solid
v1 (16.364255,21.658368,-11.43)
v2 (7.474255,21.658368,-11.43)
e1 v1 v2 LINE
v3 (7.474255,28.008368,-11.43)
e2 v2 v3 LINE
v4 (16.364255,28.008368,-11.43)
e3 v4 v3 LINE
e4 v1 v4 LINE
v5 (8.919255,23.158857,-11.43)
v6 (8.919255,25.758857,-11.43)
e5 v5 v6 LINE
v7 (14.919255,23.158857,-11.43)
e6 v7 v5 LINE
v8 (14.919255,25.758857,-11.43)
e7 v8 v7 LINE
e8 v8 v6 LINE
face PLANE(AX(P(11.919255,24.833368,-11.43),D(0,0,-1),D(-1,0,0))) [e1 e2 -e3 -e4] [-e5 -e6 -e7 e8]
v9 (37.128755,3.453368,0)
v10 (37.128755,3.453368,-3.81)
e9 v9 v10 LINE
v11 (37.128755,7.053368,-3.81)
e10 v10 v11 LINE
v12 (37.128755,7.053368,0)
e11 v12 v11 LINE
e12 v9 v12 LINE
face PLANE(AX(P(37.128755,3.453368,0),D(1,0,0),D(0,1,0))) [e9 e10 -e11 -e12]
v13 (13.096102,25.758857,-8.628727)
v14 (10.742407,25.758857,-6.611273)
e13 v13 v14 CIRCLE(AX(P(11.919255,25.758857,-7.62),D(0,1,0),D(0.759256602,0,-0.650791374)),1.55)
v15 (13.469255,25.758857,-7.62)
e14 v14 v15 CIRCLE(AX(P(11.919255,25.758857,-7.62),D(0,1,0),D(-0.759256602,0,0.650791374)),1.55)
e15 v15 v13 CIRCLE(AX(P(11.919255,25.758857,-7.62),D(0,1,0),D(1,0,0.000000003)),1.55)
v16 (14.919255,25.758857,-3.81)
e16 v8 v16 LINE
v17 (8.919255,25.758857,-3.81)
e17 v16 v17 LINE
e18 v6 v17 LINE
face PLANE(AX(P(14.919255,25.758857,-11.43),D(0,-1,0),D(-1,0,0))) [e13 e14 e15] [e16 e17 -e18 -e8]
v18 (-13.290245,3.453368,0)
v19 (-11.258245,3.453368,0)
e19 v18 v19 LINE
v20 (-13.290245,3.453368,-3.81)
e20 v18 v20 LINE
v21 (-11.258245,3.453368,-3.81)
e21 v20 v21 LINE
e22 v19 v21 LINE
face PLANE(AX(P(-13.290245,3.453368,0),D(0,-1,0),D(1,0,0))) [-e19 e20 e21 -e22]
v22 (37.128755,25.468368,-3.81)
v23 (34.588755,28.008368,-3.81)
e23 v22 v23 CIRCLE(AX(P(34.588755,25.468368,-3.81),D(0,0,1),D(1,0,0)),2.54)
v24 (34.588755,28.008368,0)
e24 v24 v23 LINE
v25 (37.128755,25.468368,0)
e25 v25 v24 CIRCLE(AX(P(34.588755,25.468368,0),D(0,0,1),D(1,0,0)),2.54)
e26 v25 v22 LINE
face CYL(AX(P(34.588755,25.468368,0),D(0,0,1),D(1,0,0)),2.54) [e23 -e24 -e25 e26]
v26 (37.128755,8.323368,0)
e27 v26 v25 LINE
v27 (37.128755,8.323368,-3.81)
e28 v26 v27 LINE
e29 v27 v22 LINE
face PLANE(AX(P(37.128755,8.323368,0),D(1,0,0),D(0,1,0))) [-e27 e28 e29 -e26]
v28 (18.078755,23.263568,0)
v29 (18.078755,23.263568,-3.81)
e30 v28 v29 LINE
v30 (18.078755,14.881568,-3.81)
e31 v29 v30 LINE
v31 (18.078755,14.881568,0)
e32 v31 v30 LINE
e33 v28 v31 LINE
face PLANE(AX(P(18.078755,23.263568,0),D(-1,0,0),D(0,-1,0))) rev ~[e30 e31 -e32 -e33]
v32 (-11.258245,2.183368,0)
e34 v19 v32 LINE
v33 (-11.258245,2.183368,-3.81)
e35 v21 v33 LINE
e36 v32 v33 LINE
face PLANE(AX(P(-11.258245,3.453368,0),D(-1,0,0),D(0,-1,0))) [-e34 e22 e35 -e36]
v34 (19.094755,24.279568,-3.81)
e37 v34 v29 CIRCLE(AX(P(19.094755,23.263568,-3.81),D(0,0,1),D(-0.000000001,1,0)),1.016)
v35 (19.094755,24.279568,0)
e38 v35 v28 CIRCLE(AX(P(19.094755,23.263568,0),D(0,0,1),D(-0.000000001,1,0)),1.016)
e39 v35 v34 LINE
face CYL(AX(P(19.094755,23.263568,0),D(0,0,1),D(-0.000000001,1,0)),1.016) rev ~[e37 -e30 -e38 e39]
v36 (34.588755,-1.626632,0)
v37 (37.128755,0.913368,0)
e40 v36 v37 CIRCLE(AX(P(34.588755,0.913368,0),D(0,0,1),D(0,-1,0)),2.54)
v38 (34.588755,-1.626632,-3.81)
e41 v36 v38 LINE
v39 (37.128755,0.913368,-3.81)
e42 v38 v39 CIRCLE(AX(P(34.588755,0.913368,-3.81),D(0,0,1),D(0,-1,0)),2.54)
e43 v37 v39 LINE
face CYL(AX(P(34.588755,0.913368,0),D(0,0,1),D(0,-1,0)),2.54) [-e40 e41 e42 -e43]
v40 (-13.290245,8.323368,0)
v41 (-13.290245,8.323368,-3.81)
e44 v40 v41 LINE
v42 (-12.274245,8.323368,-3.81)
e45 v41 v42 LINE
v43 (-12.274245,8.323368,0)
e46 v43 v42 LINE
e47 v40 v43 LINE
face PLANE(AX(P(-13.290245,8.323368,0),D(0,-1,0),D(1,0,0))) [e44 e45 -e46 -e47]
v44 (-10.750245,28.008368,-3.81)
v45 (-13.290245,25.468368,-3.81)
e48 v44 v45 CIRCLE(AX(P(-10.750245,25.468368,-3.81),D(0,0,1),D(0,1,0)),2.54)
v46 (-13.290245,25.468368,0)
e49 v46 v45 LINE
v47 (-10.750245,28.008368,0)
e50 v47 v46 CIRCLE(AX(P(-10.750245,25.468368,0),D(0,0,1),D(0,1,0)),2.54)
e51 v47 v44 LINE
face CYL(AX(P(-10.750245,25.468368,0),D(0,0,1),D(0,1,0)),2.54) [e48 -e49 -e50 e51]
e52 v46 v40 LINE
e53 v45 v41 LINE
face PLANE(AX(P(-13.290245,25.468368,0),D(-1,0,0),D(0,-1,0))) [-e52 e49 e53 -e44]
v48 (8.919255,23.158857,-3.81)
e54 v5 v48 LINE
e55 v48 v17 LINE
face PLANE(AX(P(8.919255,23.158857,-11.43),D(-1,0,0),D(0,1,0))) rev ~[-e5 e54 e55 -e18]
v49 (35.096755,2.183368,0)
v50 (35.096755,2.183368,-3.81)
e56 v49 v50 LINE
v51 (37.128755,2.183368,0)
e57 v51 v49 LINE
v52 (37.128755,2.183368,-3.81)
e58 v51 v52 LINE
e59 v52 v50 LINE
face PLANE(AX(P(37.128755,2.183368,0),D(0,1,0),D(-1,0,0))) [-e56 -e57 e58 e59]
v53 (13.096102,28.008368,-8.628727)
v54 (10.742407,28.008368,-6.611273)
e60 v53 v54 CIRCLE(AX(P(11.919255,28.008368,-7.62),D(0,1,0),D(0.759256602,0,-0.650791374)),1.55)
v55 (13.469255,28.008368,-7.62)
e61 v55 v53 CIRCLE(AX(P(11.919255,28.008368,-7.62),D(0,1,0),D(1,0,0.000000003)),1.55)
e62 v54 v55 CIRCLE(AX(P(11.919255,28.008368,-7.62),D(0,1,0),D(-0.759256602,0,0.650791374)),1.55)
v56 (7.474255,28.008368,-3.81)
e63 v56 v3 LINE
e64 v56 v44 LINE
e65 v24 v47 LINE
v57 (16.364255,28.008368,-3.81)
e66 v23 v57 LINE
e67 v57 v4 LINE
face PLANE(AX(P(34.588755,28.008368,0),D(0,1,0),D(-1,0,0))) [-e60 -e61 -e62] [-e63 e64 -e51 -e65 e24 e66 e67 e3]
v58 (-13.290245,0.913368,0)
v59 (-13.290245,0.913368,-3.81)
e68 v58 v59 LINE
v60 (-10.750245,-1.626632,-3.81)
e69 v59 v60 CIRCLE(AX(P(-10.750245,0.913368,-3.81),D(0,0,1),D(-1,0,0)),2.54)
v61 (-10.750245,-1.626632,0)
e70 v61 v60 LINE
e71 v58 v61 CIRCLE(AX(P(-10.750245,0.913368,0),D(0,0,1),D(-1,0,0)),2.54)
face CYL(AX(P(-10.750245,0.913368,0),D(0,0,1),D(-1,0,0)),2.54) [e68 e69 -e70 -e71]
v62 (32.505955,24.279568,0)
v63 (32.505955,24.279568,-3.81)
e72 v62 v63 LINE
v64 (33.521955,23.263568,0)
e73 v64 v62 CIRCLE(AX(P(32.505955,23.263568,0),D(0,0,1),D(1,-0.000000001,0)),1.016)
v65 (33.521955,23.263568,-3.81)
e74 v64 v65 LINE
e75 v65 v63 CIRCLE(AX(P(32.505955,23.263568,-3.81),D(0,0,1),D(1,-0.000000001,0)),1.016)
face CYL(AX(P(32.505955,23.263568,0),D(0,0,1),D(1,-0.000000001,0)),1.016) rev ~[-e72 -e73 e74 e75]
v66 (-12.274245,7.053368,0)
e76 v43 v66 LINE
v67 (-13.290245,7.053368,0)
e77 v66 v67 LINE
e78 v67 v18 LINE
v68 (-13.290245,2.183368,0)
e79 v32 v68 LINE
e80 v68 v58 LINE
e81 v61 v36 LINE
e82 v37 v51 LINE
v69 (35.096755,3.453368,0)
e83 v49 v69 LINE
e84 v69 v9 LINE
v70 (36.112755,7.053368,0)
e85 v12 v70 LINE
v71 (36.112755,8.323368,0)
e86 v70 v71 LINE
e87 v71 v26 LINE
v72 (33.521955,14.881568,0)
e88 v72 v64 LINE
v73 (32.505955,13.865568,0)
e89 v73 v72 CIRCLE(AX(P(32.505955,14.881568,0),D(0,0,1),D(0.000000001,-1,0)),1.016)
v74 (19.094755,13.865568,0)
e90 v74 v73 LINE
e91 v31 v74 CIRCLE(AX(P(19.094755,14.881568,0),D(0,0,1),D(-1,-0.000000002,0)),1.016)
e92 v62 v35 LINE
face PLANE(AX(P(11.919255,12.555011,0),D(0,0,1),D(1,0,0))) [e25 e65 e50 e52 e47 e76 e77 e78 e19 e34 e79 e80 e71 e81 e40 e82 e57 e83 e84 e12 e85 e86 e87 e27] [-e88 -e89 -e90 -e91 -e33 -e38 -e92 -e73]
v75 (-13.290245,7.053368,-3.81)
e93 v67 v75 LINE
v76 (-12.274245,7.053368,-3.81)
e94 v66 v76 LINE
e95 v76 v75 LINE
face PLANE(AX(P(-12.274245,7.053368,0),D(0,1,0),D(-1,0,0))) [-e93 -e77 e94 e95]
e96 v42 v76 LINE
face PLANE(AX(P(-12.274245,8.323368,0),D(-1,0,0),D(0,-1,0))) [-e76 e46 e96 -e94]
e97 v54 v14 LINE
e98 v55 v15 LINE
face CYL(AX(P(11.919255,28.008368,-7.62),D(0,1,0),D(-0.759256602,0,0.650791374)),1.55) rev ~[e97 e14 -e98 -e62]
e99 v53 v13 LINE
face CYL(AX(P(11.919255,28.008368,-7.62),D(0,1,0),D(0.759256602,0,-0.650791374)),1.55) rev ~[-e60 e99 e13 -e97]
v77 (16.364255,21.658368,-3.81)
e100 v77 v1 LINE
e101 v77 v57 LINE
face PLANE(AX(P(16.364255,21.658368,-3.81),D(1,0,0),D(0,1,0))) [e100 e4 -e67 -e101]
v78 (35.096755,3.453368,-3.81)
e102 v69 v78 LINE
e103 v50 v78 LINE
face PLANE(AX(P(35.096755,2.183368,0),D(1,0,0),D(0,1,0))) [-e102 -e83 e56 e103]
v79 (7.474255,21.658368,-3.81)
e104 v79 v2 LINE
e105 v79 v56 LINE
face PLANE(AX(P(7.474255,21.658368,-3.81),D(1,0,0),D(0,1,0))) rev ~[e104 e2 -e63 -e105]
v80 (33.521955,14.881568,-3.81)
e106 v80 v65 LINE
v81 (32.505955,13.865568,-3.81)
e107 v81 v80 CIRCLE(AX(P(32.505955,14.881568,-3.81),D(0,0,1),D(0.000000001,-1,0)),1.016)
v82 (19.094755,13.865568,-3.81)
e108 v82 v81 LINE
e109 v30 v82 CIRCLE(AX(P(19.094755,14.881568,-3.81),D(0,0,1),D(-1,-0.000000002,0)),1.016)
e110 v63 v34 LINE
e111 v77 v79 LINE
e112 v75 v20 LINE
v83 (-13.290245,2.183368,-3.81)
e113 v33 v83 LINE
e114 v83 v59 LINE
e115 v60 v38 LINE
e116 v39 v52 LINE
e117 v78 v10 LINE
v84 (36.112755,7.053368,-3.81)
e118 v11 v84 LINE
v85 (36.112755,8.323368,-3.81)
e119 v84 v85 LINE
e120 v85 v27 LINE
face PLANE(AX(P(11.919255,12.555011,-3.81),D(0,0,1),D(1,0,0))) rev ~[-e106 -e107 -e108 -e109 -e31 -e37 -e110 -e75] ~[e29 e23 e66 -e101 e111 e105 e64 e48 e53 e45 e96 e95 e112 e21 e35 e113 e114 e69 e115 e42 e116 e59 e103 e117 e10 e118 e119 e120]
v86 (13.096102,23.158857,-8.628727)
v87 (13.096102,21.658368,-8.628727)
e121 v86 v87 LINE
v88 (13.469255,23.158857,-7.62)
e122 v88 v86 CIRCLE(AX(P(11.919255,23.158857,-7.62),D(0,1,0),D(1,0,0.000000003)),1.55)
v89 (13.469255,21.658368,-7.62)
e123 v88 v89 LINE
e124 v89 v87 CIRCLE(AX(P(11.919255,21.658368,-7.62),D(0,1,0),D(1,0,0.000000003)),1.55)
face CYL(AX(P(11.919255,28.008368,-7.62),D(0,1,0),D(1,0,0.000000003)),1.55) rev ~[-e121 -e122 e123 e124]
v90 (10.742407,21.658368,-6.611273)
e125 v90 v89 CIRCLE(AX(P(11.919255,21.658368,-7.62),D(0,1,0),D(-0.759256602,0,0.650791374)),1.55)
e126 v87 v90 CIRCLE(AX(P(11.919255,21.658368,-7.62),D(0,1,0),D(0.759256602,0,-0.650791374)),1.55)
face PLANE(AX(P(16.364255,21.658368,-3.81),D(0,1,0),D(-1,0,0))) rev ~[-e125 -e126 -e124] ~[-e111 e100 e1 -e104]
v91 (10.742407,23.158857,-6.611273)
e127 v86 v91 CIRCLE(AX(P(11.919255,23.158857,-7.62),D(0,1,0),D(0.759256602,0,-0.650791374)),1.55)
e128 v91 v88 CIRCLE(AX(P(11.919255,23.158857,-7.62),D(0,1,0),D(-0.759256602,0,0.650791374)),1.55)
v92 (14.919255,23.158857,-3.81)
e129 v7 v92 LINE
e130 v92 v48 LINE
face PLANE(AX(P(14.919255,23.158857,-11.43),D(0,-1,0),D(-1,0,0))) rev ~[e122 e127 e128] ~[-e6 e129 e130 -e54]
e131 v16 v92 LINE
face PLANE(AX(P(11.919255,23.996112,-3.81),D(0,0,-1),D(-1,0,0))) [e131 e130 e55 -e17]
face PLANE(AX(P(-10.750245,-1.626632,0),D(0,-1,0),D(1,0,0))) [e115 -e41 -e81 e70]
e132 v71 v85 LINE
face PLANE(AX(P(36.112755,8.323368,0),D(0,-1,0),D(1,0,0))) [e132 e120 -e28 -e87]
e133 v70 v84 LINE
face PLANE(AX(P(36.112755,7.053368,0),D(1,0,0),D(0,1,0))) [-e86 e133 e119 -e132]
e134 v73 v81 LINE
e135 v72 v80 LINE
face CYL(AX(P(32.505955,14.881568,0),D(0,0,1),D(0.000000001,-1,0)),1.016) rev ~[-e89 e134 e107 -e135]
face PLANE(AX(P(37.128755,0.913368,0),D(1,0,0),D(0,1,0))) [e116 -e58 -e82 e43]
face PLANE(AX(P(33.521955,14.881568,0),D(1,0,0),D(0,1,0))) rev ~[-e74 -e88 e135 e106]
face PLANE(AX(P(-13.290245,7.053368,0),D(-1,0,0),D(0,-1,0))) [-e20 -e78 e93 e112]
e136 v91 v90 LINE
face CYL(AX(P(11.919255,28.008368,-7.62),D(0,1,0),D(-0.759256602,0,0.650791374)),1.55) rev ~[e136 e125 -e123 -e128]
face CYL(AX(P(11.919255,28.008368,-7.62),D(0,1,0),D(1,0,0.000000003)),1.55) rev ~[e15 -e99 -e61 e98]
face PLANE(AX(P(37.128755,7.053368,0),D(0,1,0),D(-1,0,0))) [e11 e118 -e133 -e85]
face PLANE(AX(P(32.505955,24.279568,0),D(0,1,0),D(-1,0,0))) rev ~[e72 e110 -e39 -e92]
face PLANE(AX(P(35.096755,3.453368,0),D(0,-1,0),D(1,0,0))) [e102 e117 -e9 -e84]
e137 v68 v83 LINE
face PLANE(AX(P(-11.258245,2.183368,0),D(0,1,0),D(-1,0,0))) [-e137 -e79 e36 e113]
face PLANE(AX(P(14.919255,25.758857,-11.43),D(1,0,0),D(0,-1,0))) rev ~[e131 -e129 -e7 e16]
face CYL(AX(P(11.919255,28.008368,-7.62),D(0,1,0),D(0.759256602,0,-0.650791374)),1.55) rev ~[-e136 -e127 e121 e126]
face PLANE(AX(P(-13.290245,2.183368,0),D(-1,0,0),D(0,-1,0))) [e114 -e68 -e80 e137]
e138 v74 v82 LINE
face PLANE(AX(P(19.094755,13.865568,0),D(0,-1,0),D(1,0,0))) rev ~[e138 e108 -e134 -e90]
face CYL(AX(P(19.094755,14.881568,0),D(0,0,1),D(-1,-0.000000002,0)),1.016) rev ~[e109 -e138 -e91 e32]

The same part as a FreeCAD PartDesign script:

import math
import FreeCAD as App
import Part
import Sketcher

V = App.Vector
Q = App.Units.Quantity

doc = App.newDocument("Part")
body = doc.addObject("PartDesign::Body", "Body")

sketch1 = body.newObject("Sketcher::SketchObject", "Sketch")
sketch1.AttachmentSupport = (doc.getObject("XY_Plane"), [""])
sketch1.MapMode = "FlatFace"
sketch1.addGeometry([
    Part.LineSegment(V(37.128755, 0.913368, 0), V(37.128755, 2.183368, 0)),
    Part.LineSegment(V(37.128755, 2.183368, 0), V(35.096755, 2.183368, 0)),
    Part.LineSegment(V(35.096755, 2.183368, 0), V(35.096755, 3.453368, 0)),
    Part.LineSegment(V(35.096755, 3.453368, 0), V(37.128755, 3.453368, 0)),
    Part.LineSegment(V(37.128755, 3.453368, 0), V(37.128755, 7.053368, 0)),
    Part.LineSegment(V(37.128755, 7.053368, 0), V(36.112755, 7.053368, 0)),
    Part.LineSegment(V(36.112755, 7.053368, 0), V(36.112755, 8.323368, 0)),
    Part.LineSegment(V(36.112755, 8.323368, 0), V(37.128755, 8.323368, 0)),
    Part.LineSegment(V(37.128755, 8.323368, 0), V(37.128755, 25.468368, 0)),
    Part.ArcOfCircle(Part.Circle(V(34.588755, 25.468368, 0), V(0, 0, 1), 2.54), math.radians(0), math.radians(90)),
    Part.LineSegment(V(34.588755, 28.008368, 0), V(-10.750245, 28.008368, 0)),
    Part.ArcOfCircle(Part.Circle(V(-10.750245, 25.468368, 0), V(0, 0, 1), 2.54), math.radians(90), math.radians(180)),
    Part.LineSegment(V(-13.290245, 25.468368, 0), V(-13.290245, 8.323368, 0)),
    Part.LineSegment(V(-13.290245, 8.323368, 0), V(-12.274245, 8.323368, 0)),
    Part.LineSegment(V(-12.274245, 8.323368, 0), V(-12.274245, 7.053368, 0)),
    Part.LineSegment(V(-12.274245, 7.053368, 0), V(-13.290245, 7.053368, 0)),
    Part.LineSegment(V(-13.290245, 7.053368, 0), V(-13.290245, 3.453368, 0)),
    Part.LineSegment(V(-13.290245, 3.453368, 0), V(-11.258245, 3.453368, 0)),
    Part.LineSegment(V(-11.258245, 3.453368, 0), V(-11.258245, 2.183368, 0)),
    Part.LineSegment(V(-11.258245, 2.183368, 0), V(-13.290245, 2.183368, 0)),
    Part.LineSegment(V(-13.290245, 2.183368, 0), V(-13.290245, 0.913368, 0)),
    Part.ArcOfCircle(Part.Circle(V(-10.750245, 0.913368, 0), V(0, 0, 1), 2.54), math.radians(-180), math.radians(-90)),
    Part.LineSegment(V(-10.750245, -1.626632, 0), V(34.588755, -1.626632, 0)),
    Part.ArcOfCircle(Part.Circle(V(34.588755, 0.913368, 0), V(0, 0, 1), 2.54), math.radians(-90), math.radians(0)),
    Part.LineSegment(V(19.094755, 24.279568, 0), V(32.505955, 24.279568, 0)),
    Part.ArcOfCircle(Part.Circle(V(32.505955, 23.263568, 0), V(0, 0, 1), 1.016), math.radians(0), math.radians(90)),
    Part.LineSegment(V(33.521955, 23.263568, 0), V(33.521955, 14.881568, 0)),
    Part.ArcOfCircle(Part.Circle(V(32.505955, 14.881568, 0), V(0, 0, 1), 1.016), math.radians(-90), math.radians(0)),
    Part.LineSegment(V(32.505955, 13.865568, 0), V(19.094755, 13.865568, 0)),
    Part.ArcOfCircle(Part.Circle(V(19.094755, 14.881568, 0), V(0, 0, 1), 1.016), math.radians(-180), math.radians(-90)),
    Part.LineSegment(V(18.078755, 14.881568, 0), V(18.078755, 23.263568, 0)),
    Part.ArcOfCircle(Part.Circle(V(19.094755, 23.263568, 0), V(0, 0, 1), 1.016), math.radians(90), math.radians(180)),
], False)
sketch1.addConstraint([
    Sketcher.Constraint("Coincident", 0, 2, 1, 1),
    Sketcher.Constraint("Coincident", 1, 2, 2, 1),
    Sketcher.Constraint("Coincident", 2, 2, 3, 1),
    Sketcher.Constraint("Coincident", 3, 2, 4, 1),
    Sketcher.Constraint("Coincident", 4, 2, 5, 1),
    Sketcher.Constraint("Coincident", 5, 2, 6, 1),
    Sketcher.Constraint("Coincident", 6, 2, 7, 1),
    Sketcher.Constraint("Coincident", 7, 2, 8, 1),
    Sketcher.Constraint("Tangent", 8, 2, 9, 1),
    Sketcher.Constraint("Tangent", 9, 2, 10, 1),
    Sketcher.Constraint("Tangent", 10, 2, 11, 1),
    Sketcher.Constraint("Tangent", 11, 2, 12, 1),
    Sketcher.Constraint("Coincident", 12, 2, 13, 1),
    Sketcher.Constraint("Coincident", 13, 2, 14, 1),
    Sketcher.Constraint("Coincident", 14, 2, 15, 1),
    Sketcher.Constraint("Coincident", 15, 2, 16, 1),
    Sketcher.Constraint("Coincident", 16, 2, 17, 1),
    Sketcher.Constraint("Coincident", 17, 2, 18, 1),
    Sketcher.Constraint("Coincident", 18, 2, 19, 1),
    Sketcher.Constraint("Coincident", 19, 2, 20, 1),
    Sketcher.Constraint("Tangent", 20, 2, 21, 1),
    Sketcher.Constraint("Tangent", 21, 2, 22, 1),
    Sketcher.Constraint("Tangent", 22, 2, 23, 1),
    Sketcher.Constraint("Tangent", 23, 2, 0, 1),
    Sketcher.Constraint("Tangent", 24, 2, 25, 2),
    Sketcher.Constraint("Tangent", 25, 1, 26, 1),
    Sketcher.Constraint("Tangent", 26, 2, 27, 2),
    Sketcher.Constraint("Tangent", 27, 1, 28, 1),
    Sketcher.Constraint("Tangent", 28, 2, 29, 2),
    Sketcher.Constraint("Tangent", 29, 1, 30, 1),
    Sketcher.Constraint("Tangent", 30, 2, 31, 2),
    Sketcher.Constraint("Tangent", 31, 1, 24, 1),
    Sketcher.Constraint("Vertical", 0),
    Sketcher.Constraint("Horizontal", 1),
    Sketcher.Constraint("Vertical", 2),
    Sketcher.Constraint("Horizontal", 3),
    Sketcher.Constraint("Vertical", 4),
    Sketcher.Constraint("Horizontal", 5),
    Sketcher.Constraint("Vertical", 6),
    Sketcher.Constraint("Horizontal", 7),
    Sketcher.Constraint("Vertical", 8),
    Sketcher.Constraint("Horizontal", 10),
    Sketcher.Constraint("Vertical", 12),
    Sketcher.Constraint("Horizontal", 13),
    Sketcher.Constraint("Vertical", 14),
    Sketcher.Constraint("Horizontal", 15),
    Sketcher.Constraint("Vertical", 16),
    Sketcher.Constraint("Horizontal", 17),
    Sketcher.Constraint("Vertical", 18),
    Sketcher.Constraint("Horizontal", 19),
    Sketcher.Constraint("Vertical", 20),
    Sketcher.Constraint("Horizontal", 22),
    Sketcher.Constraint("Horizontal", 24),
    Sketcher.Constraint("Vertical", 26),
    Sketcher.Constraint("Horizontal", 28),
    Sketcher.Constraint("Vertical", 30),
    Sketcher.Constraint("Equal", 9, 11),
    Sketcher.Constraint("Equal", 11, 21),
    Sketcher.Constraint("Equal", 21, 23),
    Sketcher.Constraint("Equal", 25, 27),
    Sketcher.Constraint("Equal", 27, 29),
    Sketcher.Constraint("Equal", 29, 31),
    Sketcher.Constraint("Horizontal", 7, 2, 12, 2),
    Sketcher.Constraint("Horizontal", 5, 2, 14, 2),
    Sketcher.Constraint("Horizontal", 3, 2, 16, 2),
    Sketcher.Constraint("Horizontal", 1, 2, 18, 2),
    Sketcher.Constraint("Vertical", 11, 3, 21, 3),
    Sketcher.Constraint("Vertical", 9, 3, 23, 3),
    Sketcher.Constraint("Vertical", 0, 2, 3, 2),
    Sketcher.Constraint("Vertical", 12, 2, 15, 2),
    Sketcher.Constraint("Equal", 7, 13),
    Sketcher.Constraint("Equal", 3, 17),
    Sketcher.Constraint("Equal", 0, 2),
    Sketcher.Constraint("Equal", 2, 6),
    Sketcher.Constraint("Radius", 9, Q("0.1 in")),
    Sketcher.Constraint("Radius", 25, Q("0.04 in")),
    Sketcher.Constraint("DistanceX", 1, 2, 1, 1, Q("0.08 in")),
    Sketcher.Constraint("DistanceX", 5, 2, 5, 1, Q("0.04 in")),
    Sketcher.Constraint("DistanceY", 0, 1, 0, 2, Q("0.05 in")),
    Sketcher.Constraint("DistanceY", 26, 2, 26, 1, Q("0.33 in")),
    Sketcher.Constraint("DistanceX", 10, 2, 10, 1, Q("1.785 in")),
    Sketcher.Constraint("DistanceX", 24, 1, 24, 2, Q("0.528 in")),
    Sketcher.Constraint("DistanceY", 8, 1, 8, 2, Q("0.675 in")),
    Sketcher.Constraint("DistanceX", 29, 3, 9, 3, Q("0.61 in")),
    Sketcher.Constraint("DistanceY", 4, 1, 4, 2, Q("3.6 mm")),
    Sketcher.Constraint("DistanceY", 25, 3, 9, 3, Q("2.2048 mm")),
    Sketcher.Constraint("DistanceX", -1, 1, 9, 3, Q("34.588755 mm")),
    Sketcher.Constraint("DistanceY", -1, 1, 9, 3, Q("25.468368 mm")),
])
pad1 = body.newObject("PartDesign::Pad", "Pad")
pad1.Profile = sketch1
pad1.Length = Q("0.15 in")
pad1.Reversed = True

sketch2 = body.newObject("Sketcher::SketchObject", "Sketch001")
sketch2.AttachmentSupport = (doc.getObject("XY_Plane"), [""])
sketch2.MapMode = "FlatFace"
sketch2.AttachmentOffset = App.Placement(V(0, 0, -0.15 * 25.4), App.Rotation())
sketch2.addGeometry([
    Part.LineSegment(V(16.364255, 28.008368, 0), V(16.364255, 21.658368, 0)),
    Part.LineSegment(V(16.364255, 21.658368, 0), V(7.474255, 21.658368, 0)),
    Part.LineSegment(V(7.474255, 21.658368, 0), V(7.474255, 28.008368, 0)),
    Part.LineSegment(V(7.474255, 28.008368, 0), V(16.364255, 28.008368, 0)),
], False)
sketch2.addConstraint([
    Sketcher.Constraint("Coincident", 0, 2, 1, 1),
    Sketcher.Constraint("Coincident", 1, 2, 2, 1),
    Sketcher.Constraint("Coincident", 2, 2, 3, 1),
    Sketcher.Constraint("Coincident", 3, 2, 0, 1),
    Sketcher.Constraint("Vertical", 0),
    Sketcher.Constraint("Horizontal", 1),
    Sketcher.Constraint("Vertical", 2),
    Sketcher.Constraint("Horizontal", 3),
    Sketcher.Constraint("DistanceX", 1, 2, 1, 1, Q("0.35 in")),
    Sketcher.Constraint("DistanceY", 0, 2, 0, 1, Q("0.25 in")),
    Sketcher.Constraint("DistanceX", -1, 1, 0, 2, Q("16.364255 mm")),
    Sketcher.Constraint("DistanceY", -1, 1, 0, 2, Q("21.658368 mm")),
])
pad2 = body.newObject("PartDesign::Pad", "Pad001")
pad2.Profile = sketch2
pad2.Length = Q("0.3 in")
pad2.Reversed = True

sketch3 = body.newObject("Sketcher::SketchObject", "Sketch002")
sketch3.AttachmentSupport = (doc.getObject("XZ_Plane"), [""])
sketch3.MapMode = "FlatFace"
sketch3.AttachmentOffset = App.Placement(V(0, 0, -28.008368), App.Rotation())
sketch3.addGeometry([
    Part.ArcOfCircle(Part.Circle(V(11.919255, -7.62, 0), V(0, 0, 1), 1.55), math.radians(139.398705), math.radians(319.398705)),
    Part.ArcOfCircle(Part.Circle(V(11.919255, -7.62, 0), V(0, 0, 1), 1.55), math.radians(0), math.radians(139.398705)),
    Part.ArcOfCircle(Part.Circle(V(11.919255, -7.62, 0), V(0, 0, 1), 1.55), math.radians(-40.601295), math.radians(0)),
], False)
sketch3.addConstraint([
    Sketcher.Constraint("Tangent", 0, 1, 1, 2),
    Sketcher.Constraint("Tangent", 1, 1, 2, 2),
    Sketcher.Constraint("Tangent", 2, 1, 0, 2),
    Sketcher.Constraint("Horizontal", 2, 3, 1, 1),
    Sketcher.Constraint("DistanceY", 0, 3, -1, 1, Q("0.3 in")),
    Sketcher.Constraint("Radius", 0, Q("1.55 mm")),
    Sketcher.Constraint("DistanceX", -1, 1, 0, 3, Q("11.919255 mm")),
    Sketcher.Constraint("DistanceX", -1, 1, 0, 1, Q("10.742407 mm")),
    Sketcher.Constraint("DistanceX", -1, 1, 2, 1, Q("13.096102 mm")),
])
pocket1 = body.newObject("PartDesign::Pocket", "Pocket")
pocket1.Profile = sketch3
pocket1.Length = Q("0.3 in")
pocket1.Reversed = True

sketch4 = body.newObject("Sketcher::SketchObject", "Sketch003")
sketch4.AttachmentSupport = (doc.getObject("XY_Plane"), [""])
sketch4.MapMode = "FlatFace"
sketch4.AttachmentOffset = App.Placement(V(0, 0, -0.45 * 25.4), App.Rotation())
sketch4.addGeometry([
    Part.LineSegment(V(14.919255, 23.158857, 0), V(8.919255, 23.158857, 0)),
    Part.LineSegment(V(8.919255, 23.158857, 0), V(8.919255, 25.758857, 0)),
    Part.LineSegment(V(8.919255, 25.758857, 0), V(14.919255, 25.758857, 0)),
    Part.LineSegment(V(14.919255, 25.758857, 0), V(14.919255, 23.158857, 0)),
], False)
sketch4.addConstraint([
    Sketcher.Constraint("Coincident", 0, 2, 1, 1),
    Sketcher.Constraint("Coincident", 1, 2, 2, 1),
    Sketcher.Constraint("Coincident", 2, 2, 3, 1),
    Sketcher.Constraint("Coincident", 3, 2, 0, 1),
    Sketcher.Constraint("Horizontal", 0),
    Sketcher.Constraint("Vertical", 1),
    Sketcher.Constraint("Horizontal", 2),
    Sketcher.Constraint("Vertical", 3),
    Sketcher.Constraint("DistanceX", 0, 2, 0, 1, Q("6 mm")),
    Sketcher.Constraint("DistanceY", 1, 1, 1, 2, Q("2.6 mm")),
    Sketcher.Constraint("DistanceX", -1, 1, 0, 2, Q("8.919255 mm")),
    Sketcher.Constraint("DistanceY", -1, 1, 0, 2, Q("23.158857 mm")),
])
pocket2 = body.newObject("PartDesign::Pocket", "Pocket001")
pocket2.Profile = sketch4
pocket2.Length = Q("0.3 in")
pocket2.Reversed = True

doc.recompute()
